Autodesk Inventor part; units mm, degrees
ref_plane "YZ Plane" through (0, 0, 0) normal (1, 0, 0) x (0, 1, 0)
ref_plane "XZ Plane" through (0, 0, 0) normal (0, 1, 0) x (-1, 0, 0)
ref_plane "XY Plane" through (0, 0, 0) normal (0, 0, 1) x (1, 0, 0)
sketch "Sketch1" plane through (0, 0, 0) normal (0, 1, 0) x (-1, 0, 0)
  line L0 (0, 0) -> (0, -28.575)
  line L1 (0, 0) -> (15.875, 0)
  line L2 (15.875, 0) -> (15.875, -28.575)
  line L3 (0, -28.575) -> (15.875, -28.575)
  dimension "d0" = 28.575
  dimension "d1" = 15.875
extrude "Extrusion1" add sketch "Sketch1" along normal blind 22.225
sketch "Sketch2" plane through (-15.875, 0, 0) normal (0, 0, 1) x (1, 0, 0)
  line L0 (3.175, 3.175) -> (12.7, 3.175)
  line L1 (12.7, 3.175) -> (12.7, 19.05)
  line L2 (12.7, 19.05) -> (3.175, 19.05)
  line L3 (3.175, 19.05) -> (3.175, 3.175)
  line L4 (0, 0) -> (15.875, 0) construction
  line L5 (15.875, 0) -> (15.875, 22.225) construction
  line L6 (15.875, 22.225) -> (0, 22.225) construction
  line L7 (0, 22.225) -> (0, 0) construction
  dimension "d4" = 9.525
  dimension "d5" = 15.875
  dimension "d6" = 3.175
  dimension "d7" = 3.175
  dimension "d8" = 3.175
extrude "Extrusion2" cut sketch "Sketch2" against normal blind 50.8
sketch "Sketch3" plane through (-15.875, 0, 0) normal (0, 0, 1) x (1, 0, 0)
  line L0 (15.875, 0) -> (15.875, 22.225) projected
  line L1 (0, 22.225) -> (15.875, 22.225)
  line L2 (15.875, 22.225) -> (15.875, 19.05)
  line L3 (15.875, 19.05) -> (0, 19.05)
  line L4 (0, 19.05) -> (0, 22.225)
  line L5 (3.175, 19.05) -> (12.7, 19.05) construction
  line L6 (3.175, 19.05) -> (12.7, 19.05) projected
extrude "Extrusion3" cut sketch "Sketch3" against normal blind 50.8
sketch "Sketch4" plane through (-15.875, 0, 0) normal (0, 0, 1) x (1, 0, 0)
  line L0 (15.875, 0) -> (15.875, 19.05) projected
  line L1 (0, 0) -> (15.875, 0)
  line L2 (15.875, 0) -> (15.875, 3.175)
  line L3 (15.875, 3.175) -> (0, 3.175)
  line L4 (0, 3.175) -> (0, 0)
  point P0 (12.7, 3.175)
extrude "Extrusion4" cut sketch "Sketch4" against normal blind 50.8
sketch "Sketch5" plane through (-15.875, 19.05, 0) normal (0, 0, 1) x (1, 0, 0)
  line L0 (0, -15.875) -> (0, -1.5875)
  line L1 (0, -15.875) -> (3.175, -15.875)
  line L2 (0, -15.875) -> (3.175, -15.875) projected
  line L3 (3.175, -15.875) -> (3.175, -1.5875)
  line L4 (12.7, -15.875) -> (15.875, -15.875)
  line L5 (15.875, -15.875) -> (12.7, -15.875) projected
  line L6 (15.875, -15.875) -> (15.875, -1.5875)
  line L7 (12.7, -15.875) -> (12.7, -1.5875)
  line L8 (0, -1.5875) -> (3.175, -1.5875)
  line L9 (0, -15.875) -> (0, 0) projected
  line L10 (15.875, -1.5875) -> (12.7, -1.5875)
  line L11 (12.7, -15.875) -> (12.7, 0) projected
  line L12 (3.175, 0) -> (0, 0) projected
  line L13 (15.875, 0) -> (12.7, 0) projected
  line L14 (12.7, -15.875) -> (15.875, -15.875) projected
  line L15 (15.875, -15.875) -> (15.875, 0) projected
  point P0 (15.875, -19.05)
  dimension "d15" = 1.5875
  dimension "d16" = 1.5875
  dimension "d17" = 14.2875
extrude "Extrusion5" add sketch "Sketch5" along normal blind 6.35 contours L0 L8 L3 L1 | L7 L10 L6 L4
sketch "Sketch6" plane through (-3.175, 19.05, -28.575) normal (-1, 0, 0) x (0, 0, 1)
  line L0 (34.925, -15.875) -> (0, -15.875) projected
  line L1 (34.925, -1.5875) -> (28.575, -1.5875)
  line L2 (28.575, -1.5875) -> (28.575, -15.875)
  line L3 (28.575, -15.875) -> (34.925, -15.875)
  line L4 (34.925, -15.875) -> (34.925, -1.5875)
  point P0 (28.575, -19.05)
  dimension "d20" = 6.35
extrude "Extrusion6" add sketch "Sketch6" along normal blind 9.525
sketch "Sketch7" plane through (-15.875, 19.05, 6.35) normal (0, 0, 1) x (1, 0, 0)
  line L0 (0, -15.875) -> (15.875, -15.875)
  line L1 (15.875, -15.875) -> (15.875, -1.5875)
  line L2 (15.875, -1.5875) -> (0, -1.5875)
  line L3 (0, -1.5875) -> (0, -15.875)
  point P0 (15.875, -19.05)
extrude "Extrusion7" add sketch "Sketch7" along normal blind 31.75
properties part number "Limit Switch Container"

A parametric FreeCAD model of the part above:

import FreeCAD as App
import Part
import Sketcher
Q = App.Units.Quantity

doc = App.newDocument("Part")
params = doc.addObject("Spreadsheet::Sheet", "Params")
for row, (alias, value) in enumerate([
    ("sketch1_width", "0.625 in"),
    ("sketch1_height", "1.125 in"),
    ("pad1_length", "0.875 in"),
    ("sketch2_width", "0.375 in"),
    ("sketch2_height", "0.625 in"),
    ("pocket1_length", "2 in"),
    ("sketch3_width", "0.625 in"),
    ("sketch3_height", "0.125 in"),
    ("pocket2_length", "2 in"),
    ("sketch4_width", "0.625 in"),
    ("sketch4_height", "0.125 in"),
    ("pocket3_length", "2 in"),
    ("sketch5_height", "0.5625 in"),
    ("sketch5_width", "0.125 in"),
    ("pad2_length", "0.25 in"),
    ("sketch6_height", "0.25 in"),
    ("sketch6_width", "0.5625 in"),
    ("pad3_length", "0.375 in"),
    ("sketch7_width", "0.625 in"),
    ("sketch7_height", "0.5625 in"),
    ("pad4_length", "1.25 in"),
], start=1):
    params.set(f"A{row}", alias)
    params.set(f"B{row}", "=" + value)
    params.setAlias(f"B{row}", alias)

body = doc.addObject("PartDesign::Body", "Body")
body.AllowCompound = True

sketch1 = body.newObject("Sketcher::SketchObject", "Sketch")
sketch1.AttachmentSupport = (doc.getObject("XZ_Plane"), [""])
sketch1.MapMode = "FlatFace"
sketch1.addGeometry([
    Part.LineSegment(App.Vector(-16, 0, 0), App.Vector(0, 0, 0)),
    Part.LineSegment(App.Vector(0, 0, 0), App.Vector(0, -29, 0)),
    Part.LineSegment(App.Vector(0, -29, 0), App.Vector(-16, -29, 0)),
    Part.LineSegment(App.Vector(-16, -29, 0), App.Vector(-16, 0, 0)),
], False)
sketch1.addConstraint([
    Sketcher.Constraint("Coincident", 0, 2, 1, 1),
    Sketcher.Constraint("Coincident", 1, 2, 2, 1),
    Sketcher.Constraint("Coincident", 2, 2, 3, 1),
    Sketcher.Constraint("Coincident", 3, 2, 0, 1),
    Sketcher.Constraint("Horizontal", 0),
    Sketcher.Constraint("Vertical", 1),
    Sketcher.Constraint("Horizontal", 2),
    Sketcher.Constraint("Vertical", 3),
    Sketcher.Constraint("Coincident", 0, 2, -1, 1),
    Sketcher.Constraint("DistanceX", 0, 1, 0, 2, Q("0.625 in")),
    Sketcher.Constraint("DistanceY", 1, 2, 1, 1, Q("1.125 in")),
])
sketch1.setExpression("Constraints[9]", "Params.sketch1_width")
sketch1.setExpression("Constraints[10]", "Params.sketch1_height")
pad1 = body.newObject("PartDesign::Pad", "Pad")
pad1.Profile = sketch1
pad1.setExpression("Length", "Params.pad1_length")
pad1.Reversed = True

sketch2 = body.newObject("Sketcher::SketchObject", "Sketch001")
sketch2.AttachmentSupport = (doc.getObject("XY_Plane"), [""])
sketch2.MapMode = "FlatFace"
sketch2.addGeometry([
    Part.LineSegment(App.Vector(-13, 19, 0), App.Vector(-13, 3, 0)),
    Part.LineSegment(App.Vector(-13, 3, 0), App.Vector(-3, 3, 0)),
    Part.LineSegment(App.Vector(-3, 3, 0), App.Vector(-3, 19, 0)),
    Part.LineSegment(App.Vector(-3, 19, 0), App.Vector(-13, 19, 0)),
], False)
sketch2.addConstraint([
    Sketcher.Constraint("Coincident", 0, 2, 1, 1),
    Sketcher.Constraint("Coincident", 1, 2, 2, 1),
    Sketcher.Constraint("Coincident", 2, 2, 3, 1),
    Sketcher.Constraint("Coincident", 3, 2, 0, 1),
    Sketcher.Constraint("Vertical", 0),
    Sketcher.Constraint("Horizontal", 1),
    Sketcher.Constraint("Vertical", 2),
    Sketcher.Constraint("Horizontal", 3),
    Sketcher.Constraint("DistanceX", 1, 1, 1, 2, Q("0.375 in")),
    Sketcher.Constraint("DistanceY", 0, 2, 0, 1, Q("0.625 in")),
    Sketcher.Constraint("DistanceY", -1, 1, 0, 2, Q("0.125 in")),
    Sketcher.Constraint("DistanceX", 1, 2, -1, 1, Q("0.125 in")),
])
sketch2.setExpression("Constraints[8]", "Params.sketch2_width")
sketch2.setExpression("Constraints[9]", "Params.sketch2_height")
pocket1 = body.newObject("PartDesign::Pocket", "Pocket")
pocket1.Profile = sketch2
pocket1.setExpression("Length", "Params.pocket1_length")

sketch3 = body.newObject("Sketcher::SketchObject", "Sketch002")
sketch3.AttachmentSupport = (doc.getObject("XY_Plane"), [""])
sketch3.MapMode = "FlatFace"
sketch3.addGeometry([
    Part.LineSegment(App.Vector(-15.9, 19.1, 0), App.Vector(0, 19.1, 0)),
    Part.LineSegment(App.Vector(0, 19.1, 0), App.Vector(0, 22.2, 0)),
    Part.LineSegment(App.Vector(0, 22.2, 0), App.Vector(-15.9, 22.2, 0)),
    Part.LineSegment(App.Vector(-15.9, 22.2, 0), App.Vector(-15.9, 19.1, 0)),
], False)
sketch3.addConstraint([
    Sketcher.Constraint("Coincident", 0, 2, 1, 1),
    Sketcher.Constraint("Coincident", 1, 2, 2, 1),
    Sketcher.Constraint("Coincident", 2, 2, 3, 1),
    Sketcher.Constraint("Coincident", 3, 2, 0, 1),
    Sketcher.Constraint("Horizontal", 0),
    Sketcher.Constraint("Vertical", 1),
    Sketcher.Constraint("Horizontal", 2),
    Sketcher.Constraint("Vertical", 3),
    Sketcher.Constraint("PointOnObject", 0, 2, -2),
    Sketcher.Constraint("DistanceX", 0, 1, 0, 2, Q("0.625 in")),
    Sketcher.Constraint("DistanceY", 1, 1, 1, 2, Q("0.125 in")),
    Sketcher.Constraint("DistanceY", -1, 1, 0, 2, Q("0.75 in")),
])
sketch3.setExpression("Constraints[9]", "Params.sketch3_width")
sketch3.setExpression("Constraints[10]", "Params.sketch3_height")
pocket2 = body.newObject("PartDesign::Pocket", "Pocket001")
pocket2.Profile = sketch3
pocket2.setExpression("Length", "Params.pocket2_length")

sketch4 = body.newObject("Sketcher::SketchObject", "Sketch003")
sketch4.AttachmentSupport = (doc.getObject("XY_Plane"), [""])
sketch4.MapMode = "FlatFace"
sketch4.addGeometry([
    Part.LineSegment(App.Vector(-15.9, 0, 0), App.Vector(0, 0, 0)),
    Part.LineSegment(App.Vector(0, 0, 0), App.Vector(0, 3.2, 0)),
    Part.LineSegment(App.Vector(0, 3.2, 0), App.Vector(-15.9, 3.2, 0)),
    Part.LineSegment(App.Vector(-15.9, 3.2, 0), App.Vector(-15.9, 0, 0)),
], False)
sketch4.addConstraint([
    Sketcher.Constraint("Coincident", 0, 2, 1, 1),
    Sketcher.Constraint("Coincident", 1, 2, 2, 1),
    Sketcher.Constraint("Coincident", 2, 2, 3, 1),
    Sketcher.Constraint("Coincident", 3, 2, 0, 1),
    Sketcher.Constraint("Horizontal", 0),
    Sketcher.Constraint("Vertical", 1),
    Sketcher.Constraint("Horizontal", 2),
    Sketcher.Constraint("Vertical", 3),
    Sketcher.Constraint("Coincident", 0, 2, -1, 1),
    Sketcher.Constraint("DistanceX", 0, 1, 0, 2, Q("0.625 in")),
    Sketcher.Constraint("DistanceY", 1, 1, 1, 2, Q("0.125 in")),
])
sketch4.setExpression("Constraints[9]", "Params.sketch4_width")
sketch4.setExpression("Constraints[10]", "Params.sketch4_height")
pocket3 = body.newObject("PartDesign::Pocket", "Pocket002")
pocket3.Profile = sketch4
pocket3.setExpression("Length", "Params.pocket3_length")

sketch5 = body.newObject("Sketcher::SketchObject", "Sketch004")
sketch5.AttachmentSupport = (doc.getObject("XY_Plane"), [""])
sketch5.MapMode = "FlatFace"
sketch5.addGeometry([
    Part.LineSegment(App.Vector(-15.9, 17.5, 0), App.Vector(-15.9, 3.2, 0)),
    Part.LineSegment(App.Vector(-15.9, 3.2, 0), App.Vector(-12.7, 3.2, 0)),
    Part.LineSegment(App.Vector(-12.7, 3.2, 0), App.Vector(-12.7, 17.5, 0)),
    Part.LineSegment(App.Vector(-12.7, 17.5, 0), App.Vector(-15.9, 17.5, 0)),
    Part.LineSegment(App.Vector(-3.2, 17.5, 0), App.Vector(-3.2, 3.2, 0)),
    Part.LineSegment(App.Vector(-3.2, 3.2, 0), App.Vector(0, 3.2, 0)),
    Part.LineSegment(App.Vector(0, 3.2, 0), App.Vector(0, 17.5, 0)),
    Part.LineSegment(App.Vector(0, 17.5, 0), App.Vector(-3.2, 17.5, 0)),
], False)
sketch5.addConstraint([
    Sketcher.Constraint("Coincident", 0, 2, 1, 1),
    Sketcher.Constraint("Coincident", 1, 2, 2, 1),
    Sketcher.Constraint("Coincident", 2, 2, 3, 1),
    Sketcher.Constraint("Coincident", 3, 2, 0, 1),
    Sketcher.Constraint("Coincident", 4, 2, 5, 1),
    Sketcher.Constraint("Coincident", 5, 2, 6, 1),
    Sketcher.Constraint("Coincident", 6, 2, 7, 1),
    Sketcher.Constraint("Coincident", 7, 2, 4, 1),
    Sketcher.Constraint("Vertical", 0),
    Sketcher.Constraint("Horizontal", 1),
    Sketcher.Constraint("Vertical", 2),
    Sketcher.Constraint("Horizontal", 3),
    Sketcher.Constraint("Vertical", 4),
    Sketcher.Constraint("Horizontal", 5),
    Sketcher.Constraint("Vertical", 6),
    Sketcher.Constraint("Horizontal", 7),
    Sketcher.Constraint("PointOnObject", 5, 2, -2),
    Sketcher.Constraint("Horizontal", 1, 2, 4, 2),
    Sketcher.Constraint("Horizontal", 3, 2, 6, 2),
    Sketcher.Constraint("Equal", 3, 5),
    Sketcher.Constraint("DistanceY", 0, 2, 0, 1, Q("0.5625 in")),
    Sketcher.Constraint("DistanceX", 1, 2, -1, 1, Q("0.5 in")),
    Sketcher.Constraint("DistanceX", 1, 1, 1, 2, Q("0.125 in")),
    Sketcher.Constraint("DistanceY", -1, 1, 0, 2, Q("0.125 in")),
])
sketch5.setExpression("Constraints[20]", "Params.sketch5_height")
sketch5.setExpression("Constraints[22]", "Params.sketch5_width")
pad2 = body.newObject("PartDesign::Pad", "Pad001")
pad2.Profile = sketch5
pad2.setExpression("Length", "Params.pad2_length")

sketch6 = body.newObject("Sketcher::SketchObject", "Sketch005")
sketch6.AttachmentSupport = (doc.getObject("YZ_Plane"), [""])
sketch6.MapMode = "FlatFace"
sketch6.AttachmentOffset = App.Placement(App.Vector(0, 0, -0.125 * 25.4), App.Rotation())
sketch6.addGeometry([
    Part.LineSegment(App.Vector(3, 0, 0), App.Vector(3, 6, 0)),
    Part.LineSegment(App.Vector(3, 6, 0), App.Vector(17, 6, 0)),
    Part.LineSegment(App.Vector(17, 6, 0), App.Vector(17, 0, 0)),
    Part.LineSegment(App.Vector(17, 0, 0), App.Vector(3, 0, 0)),
], False)
sketch6.addConstraint([
    Sketcher.Constraint("Coincident", 0, 2, 1, 1),
    Sketcher.Constraint("Coincident", 1, 2, 2, 1),
    Sketcher.Constraint("Coincident", 2, 2, 3, 1),
    Sketcher.Constraint("Coincident", 3, 2, 0, 1),
    Sketcher.Constraint("Vertical", 0),
    Sketcher.Constraint("Horizontal", 1),
    Sketcher.Constraint("Vertical", 2),
    Sketcher.Constraint("Horizontal", 3),
    Sketcher.Constraint("PointOnObject", 2, 2, -1),
    Sketcher.Constraint("DistanceY", 0, 1, 0, 2, Q("0.25 in")),
    Sketcher.Constraint("DistanceX", 1, 1, 1, 2, Q("0.5625 in")),
    Sketcher.Constraint("DistanceX", -1, 1, 0, 2, Q("0.125 in")),
])
sketch6.setExpression("Constraints[9]", "Params.sketch6_height")
sketch6.setExpression("Constraints[10]", "Params.sketch6_width")
pad3 = body.newObject("PartDesign::Pad", "Pad002")
pad3.Profile = sketch6
pad3.setExpression("Length", "Params.pad3_length")
pad3.Reversed = True

sketch7 = body.newObject("Sketcher::SketchObject", "Sketch006")
sketch7.AttachmentSupport = (doc.getObject("XY_Plane"), [""])
sketch7.MapMode = "FlatFace"
sketch7.AttachmentOffset = App.Placement(App.Vector(0, 0, 0.25 * 25.4), App.Rotation())
sketch7.addGeometry([
    Part.LineSegment(App.Vector(-16, 17, 0), App.Vector(-16, 3, 0)),
    Part.LineSegment(App.Vector(-16, 3, 0), App.Vector(0, 3, 0)),
    Part.LineSegment(App.Vector(0, 3, 0), App.Vector(0, 17, 0)),
    Part.LineSegment(App.Vector(0, 17, 0), App.Vector(-16, 17, 0)),
], False)
sketch7.addConstraint([
    Sketcher.Constraint("Coincident", 0, 2, 1, 1),
    Sketcher.Constraint("Coincident", 1, 2, 2, 1),
    Sketcher.Constraint("Coincident", 2, 2, 3, 1),
    Sketcher.Constraint("Coincident", 3, 2, 0, 1),
    Sketcher.Constraint("Vertical", 0),
    Sketcher.Constraint("Horizontal", 1),
    Sketcher.Constraint("Vertical", 2),
    Sketcher.Constraint("Horizontal", 3),
    Sketcher.Constraint("PointOnObject", 1, 2, -2),
    Sketcher.Constraint("DistanceX", 1, 1, 1, 2, Q("0.625 in")),
    Sketcher.Constraint("DistanceY", 0, 2, 0, 1, Q("0.5625 in")),
    Sketcher.Constraint("DistanceY", -1, 1, 0, 2, Q("0.125 in")),
])
sketch7.setExpression("Constraints[9]", "Params.sketch7_width")
sketch7.setExpression("Constraints[10]", "Params.sketch7_height")
pad4 = body.newObject("PartDesign::Pad", "Pad003")
pad4.Profile = sketch7
pad4.setExpression("Length", "Params.pad4_length")

doc.recompute()
